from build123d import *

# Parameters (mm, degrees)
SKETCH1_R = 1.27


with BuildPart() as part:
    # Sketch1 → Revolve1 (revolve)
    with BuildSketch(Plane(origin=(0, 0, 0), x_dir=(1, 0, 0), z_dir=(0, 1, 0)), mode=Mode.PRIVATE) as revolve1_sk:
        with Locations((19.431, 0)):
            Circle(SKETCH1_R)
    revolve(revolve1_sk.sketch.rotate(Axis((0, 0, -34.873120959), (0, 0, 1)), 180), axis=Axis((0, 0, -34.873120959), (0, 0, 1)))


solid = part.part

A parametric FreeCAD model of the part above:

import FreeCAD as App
import Part
import Sketcher
Q = App.Units.Quantity

doc = App.newDocument("Part")
body = doc.addObject("PartDesign::Body", "Body")

# Sketch on XZ plane
sketch1 = doc.addObject("Sketcher::SketchObject", "Sketch")
body.addObject(sketch1)
sketch1.AttachmentSupport = (doc.XZ_Plane, [""])
sketch1.MapMode = "FlatFace"
sketch1.addGeometry(Part.Circle(App.Vector(19.431, 0, 0), App.Vector(0, 0, 1), 1.27), False)
sketch1.addConstraint(Sketcher.Constraint("PointOnObject", 0, 3, -1))
sketch1.addConstraint(Sketcher.Constraint("Diameter", 0, Q("0.1 in")))
sketch1.addConstraint(Sketcher.Constraint("DistanceX", -1, 1, 0, 3, Q("0.765 in")))
revolution = doc.addObject("PartDesign::Revolution", "Revolution")
body.addObject(revolution)
revolution.Profile = sketch1
revolution.ReferenceAxis = (sketch1, ["V_Axis"])
revolution.Angle = 360

doc.recompute()
